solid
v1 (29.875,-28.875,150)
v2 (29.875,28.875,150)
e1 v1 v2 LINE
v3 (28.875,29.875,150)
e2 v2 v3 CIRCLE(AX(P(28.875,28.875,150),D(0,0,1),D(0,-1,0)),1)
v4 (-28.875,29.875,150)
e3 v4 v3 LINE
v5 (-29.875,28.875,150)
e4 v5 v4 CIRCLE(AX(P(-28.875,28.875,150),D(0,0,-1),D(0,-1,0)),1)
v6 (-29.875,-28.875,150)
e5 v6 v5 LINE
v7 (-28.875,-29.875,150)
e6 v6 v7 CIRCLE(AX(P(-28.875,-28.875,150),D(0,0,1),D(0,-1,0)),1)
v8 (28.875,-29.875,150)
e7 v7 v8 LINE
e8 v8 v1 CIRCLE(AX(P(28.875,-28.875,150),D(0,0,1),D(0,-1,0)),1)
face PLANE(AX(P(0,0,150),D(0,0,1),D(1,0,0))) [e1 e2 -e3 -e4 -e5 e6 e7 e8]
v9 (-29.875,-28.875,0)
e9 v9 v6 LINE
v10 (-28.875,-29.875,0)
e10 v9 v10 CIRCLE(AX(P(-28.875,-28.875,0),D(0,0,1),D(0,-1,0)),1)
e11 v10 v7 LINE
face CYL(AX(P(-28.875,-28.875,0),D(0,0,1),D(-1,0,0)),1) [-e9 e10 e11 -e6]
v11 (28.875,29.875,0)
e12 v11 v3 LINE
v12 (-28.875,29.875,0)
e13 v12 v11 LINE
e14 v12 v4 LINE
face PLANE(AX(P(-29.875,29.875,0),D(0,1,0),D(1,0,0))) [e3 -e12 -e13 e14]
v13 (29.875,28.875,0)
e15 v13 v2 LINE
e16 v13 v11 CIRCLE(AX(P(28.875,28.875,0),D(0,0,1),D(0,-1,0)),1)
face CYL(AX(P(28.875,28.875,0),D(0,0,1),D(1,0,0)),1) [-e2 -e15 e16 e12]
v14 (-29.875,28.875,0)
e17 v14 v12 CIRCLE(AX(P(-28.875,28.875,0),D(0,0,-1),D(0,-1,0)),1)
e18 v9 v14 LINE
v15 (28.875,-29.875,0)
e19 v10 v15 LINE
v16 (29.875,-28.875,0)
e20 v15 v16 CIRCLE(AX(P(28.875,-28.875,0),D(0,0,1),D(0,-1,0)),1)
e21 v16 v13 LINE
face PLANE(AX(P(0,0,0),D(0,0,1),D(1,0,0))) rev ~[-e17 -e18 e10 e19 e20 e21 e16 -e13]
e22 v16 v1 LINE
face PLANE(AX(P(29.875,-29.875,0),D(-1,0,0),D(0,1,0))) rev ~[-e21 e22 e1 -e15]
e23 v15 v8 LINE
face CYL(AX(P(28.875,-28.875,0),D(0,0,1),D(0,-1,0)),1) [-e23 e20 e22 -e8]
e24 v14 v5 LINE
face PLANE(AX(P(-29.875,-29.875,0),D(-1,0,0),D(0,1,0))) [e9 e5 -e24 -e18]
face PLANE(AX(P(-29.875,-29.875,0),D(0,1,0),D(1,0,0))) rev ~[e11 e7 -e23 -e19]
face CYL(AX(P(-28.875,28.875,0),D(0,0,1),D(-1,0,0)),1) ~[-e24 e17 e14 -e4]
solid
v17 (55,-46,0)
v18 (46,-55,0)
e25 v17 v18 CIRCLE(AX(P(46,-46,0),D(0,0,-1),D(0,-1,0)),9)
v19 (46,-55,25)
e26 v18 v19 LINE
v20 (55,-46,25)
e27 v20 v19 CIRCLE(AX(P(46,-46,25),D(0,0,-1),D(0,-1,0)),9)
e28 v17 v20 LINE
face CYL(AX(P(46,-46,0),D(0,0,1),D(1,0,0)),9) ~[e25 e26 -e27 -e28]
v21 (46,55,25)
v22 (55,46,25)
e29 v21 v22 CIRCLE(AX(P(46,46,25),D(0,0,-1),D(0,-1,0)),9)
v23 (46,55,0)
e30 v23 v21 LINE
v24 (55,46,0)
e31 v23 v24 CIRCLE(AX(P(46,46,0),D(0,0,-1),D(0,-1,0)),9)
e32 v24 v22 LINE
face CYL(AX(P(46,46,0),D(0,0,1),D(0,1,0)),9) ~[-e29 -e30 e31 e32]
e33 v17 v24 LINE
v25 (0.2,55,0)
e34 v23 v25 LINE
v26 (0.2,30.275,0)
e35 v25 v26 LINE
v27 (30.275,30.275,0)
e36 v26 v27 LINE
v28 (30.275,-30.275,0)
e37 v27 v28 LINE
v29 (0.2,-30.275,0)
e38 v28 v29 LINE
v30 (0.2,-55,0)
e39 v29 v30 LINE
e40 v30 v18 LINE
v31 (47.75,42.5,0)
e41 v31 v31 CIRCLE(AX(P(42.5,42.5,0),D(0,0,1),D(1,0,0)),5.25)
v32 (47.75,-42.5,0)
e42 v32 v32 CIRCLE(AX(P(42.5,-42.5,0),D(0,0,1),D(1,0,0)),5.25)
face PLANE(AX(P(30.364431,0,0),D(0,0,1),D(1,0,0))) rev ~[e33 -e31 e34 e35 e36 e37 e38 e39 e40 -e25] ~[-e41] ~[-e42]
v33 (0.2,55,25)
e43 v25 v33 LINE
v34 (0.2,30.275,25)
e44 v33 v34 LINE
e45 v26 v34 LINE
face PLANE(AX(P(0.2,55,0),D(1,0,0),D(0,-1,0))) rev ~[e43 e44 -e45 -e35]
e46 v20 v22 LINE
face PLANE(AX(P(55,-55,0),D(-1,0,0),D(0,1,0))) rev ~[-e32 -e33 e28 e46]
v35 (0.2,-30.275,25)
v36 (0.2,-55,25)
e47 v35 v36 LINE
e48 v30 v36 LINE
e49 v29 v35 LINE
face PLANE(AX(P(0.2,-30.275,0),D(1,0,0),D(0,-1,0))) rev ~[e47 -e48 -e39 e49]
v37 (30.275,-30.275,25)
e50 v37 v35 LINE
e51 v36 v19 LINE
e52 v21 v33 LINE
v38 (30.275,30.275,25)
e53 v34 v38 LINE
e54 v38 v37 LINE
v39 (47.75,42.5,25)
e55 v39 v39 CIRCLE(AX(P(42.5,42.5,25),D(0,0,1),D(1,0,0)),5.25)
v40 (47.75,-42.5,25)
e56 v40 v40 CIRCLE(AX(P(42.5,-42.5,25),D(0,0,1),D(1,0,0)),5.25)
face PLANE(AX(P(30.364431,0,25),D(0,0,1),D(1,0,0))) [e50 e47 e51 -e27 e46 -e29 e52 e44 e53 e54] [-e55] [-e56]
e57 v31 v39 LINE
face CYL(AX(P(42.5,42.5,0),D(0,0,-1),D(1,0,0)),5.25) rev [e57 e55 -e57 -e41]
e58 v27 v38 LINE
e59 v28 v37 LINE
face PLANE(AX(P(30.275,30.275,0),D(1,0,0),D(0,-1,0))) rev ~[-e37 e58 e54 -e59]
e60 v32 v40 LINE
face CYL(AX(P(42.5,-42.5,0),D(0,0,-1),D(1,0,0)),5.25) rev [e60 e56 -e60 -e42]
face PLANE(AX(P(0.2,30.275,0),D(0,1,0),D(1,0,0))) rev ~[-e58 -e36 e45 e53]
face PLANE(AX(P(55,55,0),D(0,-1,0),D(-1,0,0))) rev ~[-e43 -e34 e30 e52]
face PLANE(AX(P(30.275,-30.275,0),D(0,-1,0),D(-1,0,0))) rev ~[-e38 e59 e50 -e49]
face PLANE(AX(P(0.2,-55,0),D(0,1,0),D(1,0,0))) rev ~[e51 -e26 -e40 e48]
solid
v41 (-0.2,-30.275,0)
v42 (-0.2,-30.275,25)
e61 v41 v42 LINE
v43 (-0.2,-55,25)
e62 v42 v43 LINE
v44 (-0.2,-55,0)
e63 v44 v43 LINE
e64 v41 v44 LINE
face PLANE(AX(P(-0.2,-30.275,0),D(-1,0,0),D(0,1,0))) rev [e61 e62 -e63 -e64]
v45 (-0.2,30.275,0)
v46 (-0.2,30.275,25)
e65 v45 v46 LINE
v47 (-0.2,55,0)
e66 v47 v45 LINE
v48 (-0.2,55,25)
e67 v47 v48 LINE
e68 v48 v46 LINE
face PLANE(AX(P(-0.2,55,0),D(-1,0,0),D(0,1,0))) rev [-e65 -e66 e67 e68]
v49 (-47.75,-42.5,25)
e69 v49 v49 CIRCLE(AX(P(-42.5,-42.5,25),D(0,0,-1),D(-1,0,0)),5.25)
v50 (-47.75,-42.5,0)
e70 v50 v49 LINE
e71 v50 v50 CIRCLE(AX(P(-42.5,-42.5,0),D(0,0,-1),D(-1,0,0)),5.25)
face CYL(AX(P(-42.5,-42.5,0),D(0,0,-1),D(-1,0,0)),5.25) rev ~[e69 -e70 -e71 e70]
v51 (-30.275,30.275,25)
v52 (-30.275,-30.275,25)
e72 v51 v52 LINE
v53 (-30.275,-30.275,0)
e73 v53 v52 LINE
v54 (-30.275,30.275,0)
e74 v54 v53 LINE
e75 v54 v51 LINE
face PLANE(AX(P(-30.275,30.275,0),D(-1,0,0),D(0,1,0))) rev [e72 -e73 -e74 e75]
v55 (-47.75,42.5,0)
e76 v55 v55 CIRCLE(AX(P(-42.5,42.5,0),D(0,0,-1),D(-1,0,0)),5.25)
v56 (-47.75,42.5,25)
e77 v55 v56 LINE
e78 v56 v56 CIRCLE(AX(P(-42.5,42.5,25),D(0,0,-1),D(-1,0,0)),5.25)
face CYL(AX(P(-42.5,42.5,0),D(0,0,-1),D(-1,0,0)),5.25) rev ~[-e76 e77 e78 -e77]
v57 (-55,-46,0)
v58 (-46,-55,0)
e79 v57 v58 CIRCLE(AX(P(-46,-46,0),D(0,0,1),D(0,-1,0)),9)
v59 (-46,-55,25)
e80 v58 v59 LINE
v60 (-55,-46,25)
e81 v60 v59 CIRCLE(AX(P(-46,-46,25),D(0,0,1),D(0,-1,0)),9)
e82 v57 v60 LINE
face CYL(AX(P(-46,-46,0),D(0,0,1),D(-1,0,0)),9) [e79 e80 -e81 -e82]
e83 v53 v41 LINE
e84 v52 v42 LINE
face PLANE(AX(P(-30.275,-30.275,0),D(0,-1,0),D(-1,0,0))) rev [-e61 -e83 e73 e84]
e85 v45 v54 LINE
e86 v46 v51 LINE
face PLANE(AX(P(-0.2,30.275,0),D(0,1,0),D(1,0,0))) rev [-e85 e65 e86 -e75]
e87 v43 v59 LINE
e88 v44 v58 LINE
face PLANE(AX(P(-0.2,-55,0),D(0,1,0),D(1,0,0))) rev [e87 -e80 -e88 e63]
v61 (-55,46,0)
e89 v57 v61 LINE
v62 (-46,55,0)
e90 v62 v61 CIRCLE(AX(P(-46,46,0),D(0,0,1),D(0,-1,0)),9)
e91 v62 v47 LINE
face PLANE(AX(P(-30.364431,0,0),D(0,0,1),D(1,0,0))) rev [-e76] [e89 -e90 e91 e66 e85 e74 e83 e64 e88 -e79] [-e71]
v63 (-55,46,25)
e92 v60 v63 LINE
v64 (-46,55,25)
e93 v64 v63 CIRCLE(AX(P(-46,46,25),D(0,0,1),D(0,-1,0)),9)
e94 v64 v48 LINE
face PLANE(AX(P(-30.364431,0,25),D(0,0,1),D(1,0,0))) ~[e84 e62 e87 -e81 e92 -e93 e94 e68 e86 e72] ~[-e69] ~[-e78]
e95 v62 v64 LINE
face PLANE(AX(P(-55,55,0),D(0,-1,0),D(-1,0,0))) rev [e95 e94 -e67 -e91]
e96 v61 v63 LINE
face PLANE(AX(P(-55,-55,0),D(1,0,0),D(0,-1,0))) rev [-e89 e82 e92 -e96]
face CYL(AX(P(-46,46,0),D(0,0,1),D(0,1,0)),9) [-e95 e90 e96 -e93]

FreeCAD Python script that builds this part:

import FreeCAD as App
import Part
import Sketcher
Q = App.Units.Quantity


def edges_at(feature, points):
    """Names of the edges that pass closest to the given points."""
    edges = feature.Shape.Edges
    near = lambda p: min(range(len(edges)), key=lambda i: edges[i].distToShape(Part.Vertex(*p))[0])
    return sorted({f"Edge{near(p) + 1}" for p in points})


def add_polygon(sketch, points):
    """Adds a closed chain of lines whose ends are joined by coincident constraints."""
    first, n = sketch.GeometryCount, len(points)
    for a, b in zip(points, points[1:] + points[:1]):
        sketch.addGeometry(Part.LineSegment(App.Vector(*a, 0), App.Vector(*b, 0)), False)
    for i in range(n):
        sketch.addConstraint(Sketcher.Constraint("Coincident", first + i, 2, first + (i + 1) % n, 1))

doc = App.newDocument("Part")
params = doc.addObject("Spreadsheet::Sheet", "Params")
for row, (alias, value) in enumerate([
    ("sketch1_diameter", "10.5 mm"),
    ("sketch1_height", "110 mm"),
    ("sketch1_width", "54.8 mm"),
    ("sketch1_height2", "60.55 mm"),
    ("pad1_length", "25 mm"),
    ("fillet_radius", "9 mm"),
    ("sketch2_width", "59.75 mm"),
    ("pad2_length", "150 mm"),
    ("fillet2_radius", "1 mm"),
], start=1):
    params.set(f"A{row}", alias)
    params.set(f"B{row}", "=" + value)
    params.setAlias(f"B{row}", alias)

body = doc.addObject("PartDesign::Body", "Body")

# Sketch on XY plane
sketch1 = doc.addObject("Sketcher::SketchObject", "Sketch")
body.addObject(sketch1)
sketch1.AttachmentSupport = (doc.XY_Plane, [""])
sketch1.MapMode = "FlatFace"
add_polygon(sketch1, [(0.2, 30.275), (30.275, 30.275), (30.275, -30.275), (0.2, -30.275), (0.2, -55), (55, -55), (55, 55), (0.2, 55)])  # lines 0-7
sketch1.addGeometry(Part.Circle(App.Vector(42.5, -42.5, 0), App.Vector(0, 0, 1), 5.25), False)  # 8
sketch1.addGeometry(Part.Circle(App.Vector(42.5, 42.5, 0), App.Vector(0, 0, 1), 5.25), False)  # 9
sketch1.addConstraint(Sketcher.Constraint("Horizontal", 0))
sketch1.addConstraint(Sketcher.Constraint("Vertical", 1))
sketch1.addConstraint(Sketcher.Constraint("Horizontal", 2))
sketch1.addConstraint(Sketcher.Constraint("Vertical", 3))
sketch1.addConstraint(Sketcher.Constraint("Horizontal", 4))
sketch1.addConstraint(Sketcher.Constraint("Vertical", 5))
sketch1.addConstraint(Sketcher.Constraint("Horizontal", 6))
sketch1.addConstraint(Sketcher.Constraint("Vertical", 7))
sketch1.addConstraint(Sketcher.Constraint("Equal", 8, 9))
sketch1.addConstraint(Sketcher.Constraint("Symmetric", 8, 3, 9, 3, -1))
sketch1.addConstraint(Sketcher.Constraint("Symmetric", 3, 2, 6, 2, -1))
sketch1.addConstraint(Sketcher.Constraint("Equal", 3, 7))
sketch1.addConstraint(Sketcher.Constraint("Diameter", 8, Q("10.5 mm")))
sketch1.addConstraint(Sketcher.Constraint("DistanceY", 5, 1, 5, 2, Q("110 mm")))
sketch1.addConstraint(Sketcher.Constraint("DistanceX", 4, 1, 4, 2, Q("54.8 mm")))
sketch1.addConstraint(Sketcher.Constraint("DistanceX", -1, 1, 4, 2, Q("55 mm")))
sketch1.addConstraint(Sketcher.Constraint("DistanceY", 8, 3, 9, 3, Q("85 mm")))
sketch1.addConstraint(Sketcher.Constraint("DistanceY", 1, 2, 1, 1, Q("60.55 mm")))
sketch1.addConstraint(Sketcher.Constraint("DistanceX", -1, 1, 8, 3, Q("42.5 mm")))
sketch1.addConstraint(Sketcher.Constraint("DistanceX", 0, 1, 0, 2, Q("30.075 mm")))
sketch1.setExpression("Constraints[20]", "Params.sketch1_diameter")
sketch1.setExpression("Constraints[21]", "Params.sketch1_height")
sketch1.setExpression("Constraints[22]", "Params.sketch1_width")
sketch1.setExpression("Constraints[25]", "Params.sketch1_height2")
pad1 = doc.addObject("PartDesign::Pad", "Pad")
body.addObject(pad1)
pad1.Profile = sketch1
pad1.setExpression("Length", "Params.pad1_length")
doc.recompute()

fillet = doc.addObject("PartDesign::Fillet", "Fillet")
body.addObject(fillet)
fillet.Base = (pad1, edges_at(pad1, [(55, -55, 12.5), (55, 55, 12.5)]))
fillet.setExpression("Radius", "Params.fillet_radius")
body2 = doc.addObject("PartDesign::Body", "Body001")
doc.recompute()

mirroring = doc.addObject("Part::Mirroring", "Mirroring")
mirroring.Source = body
mirroring.Base = App.Vector(0, 0, 0)
mirroring.Normal = App.Vector(1, 0, 0)
body2.BaseFeature = mirroring
doc.recompute()
body3 = doc.addObject("PartDesign::Body", "Body002")

# Sketch on XY plane
sketch2 = doc.addObject("Sketcher::SketchObject", "Sketch001")
body3.addObject(sketch2)
sketch2.AttachmentSupport = (doc.getObject("XY_Plane002"), [""])
sketch2.MapMode = "FlatFace"
add_polygon(sketch2, [(-29.875, 29.875), (-29.875, -29.875), (29.875, -29.875), (29.875, 29.875)])  # lines 0-3
sketch2.addConstraint(Sketcher.Constraint("Vertical", 0))
sketch2.addConstraint(Sketcher.Constraint("Horizontal", 1))
sketch2.addConstraint(Sketcher.Constraint("Vertical", 2))
sketch2.addConstraint(Sketcher.Constraint("Horizontal", 3))
sketch2.addConstraint(Sketcher.Constraint("Symmetric", 0, 2, 2, 2, -1, 1))
sketch2.addConstraint(Sketcher.Constraint("Equal", 3, 0))
sketch2.addConstraint(Sketcher.Constraint("DistanceX", 1, 1, 1, 2, Q("59.75 mm")))
sketch2.setExpression("Constraints[10]", "Params.sketch2_width")
pad2 = doc.addObject("PartDesign::Pad", "Pad001")
body3.addObject(pad2)
pad2.Profile = sketch2
pad2.setExpression("Length", "Params.pad2_length")
doc.recompute()

fillet2 = doc.addObject("PartDesign::Fillet", "Fillet001")
body3.addObject(fillet2)
fillet2.Base = (pad2, edges_at(pad2, [
    (-29.875, -29.875, 75),
    (-29.875, 29.875, 75),
    (29.875, -29.875, 75),
    (29.875, 29.875, 75),
]))
fillet2.setExpression("Radius", "Params.fillet2_radius")
mirroring.Visibility = False

doc.recompute()
